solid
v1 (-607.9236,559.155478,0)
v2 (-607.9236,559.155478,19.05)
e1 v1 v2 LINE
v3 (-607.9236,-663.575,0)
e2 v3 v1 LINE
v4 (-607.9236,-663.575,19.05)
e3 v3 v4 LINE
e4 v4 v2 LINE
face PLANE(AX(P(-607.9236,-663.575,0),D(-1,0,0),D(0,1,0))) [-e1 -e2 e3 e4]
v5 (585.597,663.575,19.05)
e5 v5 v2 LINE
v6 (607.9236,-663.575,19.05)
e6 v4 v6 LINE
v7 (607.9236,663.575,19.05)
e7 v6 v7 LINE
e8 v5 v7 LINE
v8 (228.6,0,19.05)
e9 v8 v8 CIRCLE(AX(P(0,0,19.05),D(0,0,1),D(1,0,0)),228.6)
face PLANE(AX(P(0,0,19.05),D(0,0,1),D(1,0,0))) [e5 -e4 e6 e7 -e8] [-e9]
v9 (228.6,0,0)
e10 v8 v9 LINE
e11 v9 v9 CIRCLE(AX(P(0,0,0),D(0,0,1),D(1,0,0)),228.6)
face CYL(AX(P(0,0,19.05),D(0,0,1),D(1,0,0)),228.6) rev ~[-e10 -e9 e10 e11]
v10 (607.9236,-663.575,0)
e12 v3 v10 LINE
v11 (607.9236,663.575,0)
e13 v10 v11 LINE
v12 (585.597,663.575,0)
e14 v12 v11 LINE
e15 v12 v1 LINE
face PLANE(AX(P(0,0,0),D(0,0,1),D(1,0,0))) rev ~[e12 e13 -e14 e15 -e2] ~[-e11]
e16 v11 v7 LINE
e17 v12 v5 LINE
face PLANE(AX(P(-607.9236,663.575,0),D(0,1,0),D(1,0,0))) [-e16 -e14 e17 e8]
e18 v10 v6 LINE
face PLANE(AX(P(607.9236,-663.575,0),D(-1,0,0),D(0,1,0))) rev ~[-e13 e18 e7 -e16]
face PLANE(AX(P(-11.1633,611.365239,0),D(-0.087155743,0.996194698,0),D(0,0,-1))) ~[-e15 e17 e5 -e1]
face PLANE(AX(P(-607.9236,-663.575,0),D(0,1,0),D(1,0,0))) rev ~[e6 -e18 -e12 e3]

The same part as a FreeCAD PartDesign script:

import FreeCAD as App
import Part
import Sketcher

V = App.Vector
Q = App.Units.Quantity


def edges_at(feature, points):
    """Names of the edges that pass closest to the given points."""
    edges = feature.Shape.Edges
    near = lambda p: min(range(len(edges)), key=lambda i: edges[i].distToShape(Part.Vertex(*p))[0])
    return sorted({f"Edge{near(p) + 1}" for p in points})

doc = App.newDocument("Part")
params = doc.addObject("Spreadsheet::Sheet", "Params")
for row, (alias, value) in enumerate([
    ("sketch1_height", "52.25 in"),
    ("sketch1_width", "47.868 in"),
    ("pad1_length", "0.75 in"),
    ("chamfer_size", "46.989 in"),
    ("chamfer_size2", "104.419522 mm"),
    ("sketch2_diameter", "18 in"),
], start=1):
    params.set(f"A{row}", alias)
    params.set(f"B{row}", "=" + value)
    params.setAlias(f"B{row}", alias)

body = doc.addObject("PartDesign::Body", "Body")

# Sketch on XY plane
sketch1 = doc.addObject("Sketcher::SketchObject", "Sketch")
body.addObject(sketch1)
sketch1.AttachmentSupport = (doc.XY_Plane, [""])
sketch1.MapMode = "FlatFace"
sketch1.addGeometry([
    Part.LineSegment(V(-607.9236, 663.575, 0), V(-607.9236, -663.575, 0)),
    Part.LineSegment(V(-607.9236, -663.575, 0), V(607.9236, -663.575, 0)),
    Part.LineSegment(V(607.9236, -663.575, 0), V(607.9236, 663.575, 0)),
    Part.LineSegment(V(607.9236, 663.575, 0), V(-607.9236, 663.575, 0)),
], False)
sketch1.addConstraint([
    Sketcher.Constraint("Coincident", 0, 2, 1, 1),
    Sketcher.Constraint("Coincident", 1, 2, 2, 1),
    Sketcher.Constraint("Coincident", 2, 2, 3, 1),
    Sketcher.Constraint("Coincident", 3, 2, 0, 1),
    Sketcher.Constraint("Vertical", 0),
    Sketcher.Constraint("Horizontal", 1),
    Sketcher.Constraint("Vertical", 2),
    Sketcher.Constraint("Horizontal", 3),
    Sketcher.Constraint("Symmetric", 0, 2, 2, 2, -1, 1),
    Sketcher.Constraint("DistanceY", 0, 2, 0, 1, Q("52.25 in")),
    Sketcher.Constraint("DistanceX", 1, 1, 1, 2, Q("47.868 in")),
])
sketch1.setExpression("Constraints[9]", "Params.sketch1_height")
sketch1.setExpression("Constraints[10]", "Params.sketch1_width")
pad1 = doc.addObject("PartDesign::Pad", "Pad")
body.addObject(pad1)
pad1.Profile = sketch1
pad1.setExpression("Length", "Params.pad1_length")
doc.recompute()

chamfer = doc.addObject("PartDesign::Chamfer", "Chamfer")
body.addObject(chamfer)
chamfer.Base = (pad1, edges_at(pad1, [(-607.924, 663.575, 9.525)]))
chamfer.ChamferType = "Two distances"
chamfer.setExpression("Size", "Params.chamfer_size")
chamfer.setExpression("Size2", "Params.chamfer_size2")
chamfer.FlipDirection = True

# Sketch on XY plane
sketch2 = doc.addObject("Sketcher::SketchObject", "Sketch001")
body.addObject(sketch2)
sketch2.AttachmentSupport = (doc.XY_Plane, [""])
sketch2.MapMode = "FlatFace"
sketch2.AttachmentOffset = App.Placement(V(0, 0, 0.75 * 25.4), App.Rotation())
sketch2.addGeometry(Part.Circle(V(0, 0, 0), V(0, 0, 1), 228.6), False)
sketch2.addConstraint([
    Sketcher.Constraint("Coincident", 0, 3, -1, 1),
    Sketcher.Constraint("Diameter", 0, Q("18 in")),
])
sketch2.setExpression("Constraints[1]", "Params.sketch2_diameter")
pocket1 = doc.addObject("PartDesign::Pocket", "Pocket")
body.addObject(pocket1)
pocket1.Profile = sketch2
pocket1.Type = "ThroughAll"

doc.recompute()
